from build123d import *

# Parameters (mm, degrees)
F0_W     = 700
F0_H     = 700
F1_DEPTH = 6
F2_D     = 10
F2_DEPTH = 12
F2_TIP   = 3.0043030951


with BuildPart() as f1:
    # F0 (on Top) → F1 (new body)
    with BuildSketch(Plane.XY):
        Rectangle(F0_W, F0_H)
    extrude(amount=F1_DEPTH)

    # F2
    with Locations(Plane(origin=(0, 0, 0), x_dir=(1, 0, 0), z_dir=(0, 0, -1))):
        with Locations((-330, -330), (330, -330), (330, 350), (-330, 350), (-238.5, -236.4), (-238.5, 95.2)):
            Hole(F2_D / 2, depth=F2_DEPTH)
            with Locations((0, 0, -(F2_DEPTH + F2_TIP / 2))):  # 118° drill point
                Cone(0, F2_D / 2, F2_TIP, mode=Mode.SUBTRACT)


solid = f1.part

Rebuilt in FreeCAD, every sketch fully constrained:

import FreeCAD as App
import Part
import Sketcher
from FreeCAD import Vector
Q = App.Units.Quantity


def add_polygon(sketch, points):
    """Adds a closed chain of lines whose ends are joined by coincident constraints."""
    first, n = sketch.GeometryCount, len(points)
    for a, b in zip(points, points[1:] + points[:1]):
        sketch.addGeometry(Part.LineSegment(App.Vector(*a, 0), App.Vector(*b, 0)), False)
    for i in range(n):
        sketch.addConstraint(Sketcher.Constraint("Coincident", first + i, 2, first + (i + 1) % n, 1))

doc = App.newDocument("Part")
body = doc.addObject("PartDesign::Body", "Body")

# Sketch on XY plane
sketch1 = body.newObject("Sketcher::SketchObject", "Sketch")
sketch1.AttachmentSupport = (doc.getObject("XY_Plane"), [""])
sketch1.MapMode = "FlatFace"
add_polygon(sketch1, [(-350, 350), (-350, -350), (350, -350), (350, 350)])  # lines 0-3
sketch1.addConstraint([
    Sketcher.Constraint("Vertical", 0),
    Sketcher.Constraint("Horizontal", 1),
    Sketcher.Constraint("Vertical", 2),
    Sketcher.Constraint("Horizontal", 3),
    Sketcher.Constraint("Symmetric", 0, 2, 2, 2, -1, 1),
    Sketcher.Constraint("Equal", 3, 0),
    Sketcher.Constraint("DistanceX", 1, 1, 1, 2, Q("700 mm")),
])
pad1 = body.newObject("PartDesign::Pad", "Pad")
pad1.Profile = sketch1
pad1.Length = 6

# Sketch on XY plane
sketch2 = body.newObject("Sketcher::SketchObject", "Sketch001")
sketch2.AttachmentSupport = (doc.getObject("XY_Plane"), [""])
sketch2.MapMode = "FlatFace"
sketch2.addGeometry([
    Part.Circle(Vector(-330, 330, 0), Vector(0, 0, 1), 5),  # 0
    Part.Circle(Vector(330, 330, 0), Vector(0, 0, 1), 5),  # 1
    Part.Circle(Vector(330, -350, 0), Vector(0, 0, 1), 5),  # 2
    Part.Circle(Vector(-330, -350, 0), Vector(0, 0, 1), 5),  # 3
    Part.Circle(Vector(-238, 236, 0), Vector(0, 0, 1), 5),  # 4
    Part.Circle(Vector(-238, -95, 0), Vector(0, 0, 1), 5),  # 5
], False)
sketch2.addConstraint([
    Sketcher.Constraint("Equal", 0, 1),
    Sketcher.Constraint("Equal", 1, 2),
    Sketcher.Constraint("Equal", 2, 3),
    Sketcher.Constraint("Equal", 3, 4),
    Sketcher.Constraint("Equal", 4, 5),
    Sketcher.Constraint("Symmetric", 0, 3, 1, 3, -2),
    Sketcher.Constraint("Symmetric", 2, 3, 3, 3, -2),
    Sketcher.Constraint("Vertical", 1, 3, 2, 3),
    Sketcher.Constraint("Vertical", 4, 3, 5, 3),
    Sketcher.Constraint("Diameter", 0, Q("10 mm")),
    Sketcher.Constraint("DistanceX", 0, 3, -1, 1, Q("330 mm")),
    Sketcher.Constraint("DistanceY", -1, 1, 0, 3, Q("330 mm")),
    Sketcher.Constraint("DistanceY", 2, 3, -1, 1, Q("350 mm")),
    Sketcher.Constraint("DistanceX", 4, 3, -1, 1, Q("238.5 mm")),
    Sketcher.Constraint("DistanceY", -1, 1, 4, 3, Q("236.4 mm")),
    Sketcher.Constraint("DistanceY", 5, 3, -1, 1, Q("95.2 mm")),
])
doc.recompute()
hole = body.newObject("PartDesign::Hole", "Hole")
hole.Profile = sketch2
hole.ThreadType = "None"
hole.Diameter = 10
hole.DepthType = "Dimension"
hole.Depth = 12
hole.DrillPoint = "Angled"
hole.DrillPointAngle = 118
hole.Reversed = True

doc.recompute()
